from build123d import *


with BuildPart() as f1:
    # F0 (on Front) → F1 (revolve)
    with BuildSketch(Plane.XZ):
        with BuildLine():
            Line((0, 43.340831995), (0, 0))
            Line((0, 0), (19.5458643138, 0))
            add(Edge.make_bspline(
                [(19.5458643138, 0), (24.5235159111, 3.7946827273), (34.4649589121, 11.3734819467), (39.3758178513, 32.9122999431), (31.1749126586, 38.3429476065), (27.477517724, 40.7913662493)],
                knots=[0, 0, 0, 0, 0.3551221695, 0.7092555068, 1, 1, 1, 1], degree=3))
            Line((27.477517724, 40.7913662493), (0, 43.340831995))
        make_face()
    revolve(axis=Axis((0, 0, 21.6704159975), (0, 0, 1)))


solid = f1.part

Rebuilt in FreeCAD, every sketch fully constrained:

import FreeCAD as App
import Part
import Sketcher
from FreeCAD import Vector
Q = App.Units.Quantity

doc = App.newDocument("Part")
params = doc.addObject("Spreadsheet::Sheet", "Params")
for row, (alias, value) in enumerate([
    ("revolution_angle", "360 deg"),
], start=1):
    params.set(f"A{row}", alias)
    params.set(f"B{row}", "=" + value)
    params.setAlias(f"B{row}", alias)

body = doc.addObject("PartDesign::Body", "Body")

sketch1 = body.newObject("Sketcher::SketchObject", "Sketch")
sketch1.AttachmentSupport = (doc.getObject("XZ_Plane"), [""])
sketch1.MapMode = "FlatFace"
sketch1.addGeometry([
    Part.LineSegment(Vector(0, 43.340832, 0), Vector(0, 0, 0)),
    Part.LineSegment(Vector(0, 0, 0), Vector(19.545864, 0, 0)),
    Part.BSplineCurve([Vector(19.545864, 0, 0), Vector(24.523516, 3.794683, 0), Vector(34.464959, 11.373482, 0), Vector(39.375818, 32.9123, 0), Vector(31.174913, 38.342948, 0), Vector(27.477518, 40.791366, 0)], [4, 1, 1, 4], [0, 0.355122169, 0.709255507, 1], False, 3, [1, 1, 1, 1, 1, 1], False),
    Part.LineSegment(Vector(27.477518, 40.791366, 0), Vector(0, 43.340832, 0)),
], False)
sketch1.addConstraint([
    Sketcher.Constraint("Block", 2),
    Sketcher.Constraint("Coincident", 0, 2, 1, 1),
    Sketcher.Constraint("Coincident", 1, 2, 2, 1),
    Sketcher.Constraint("Coincident", 2, 2, 3, 1),
    Sketcher.Constraint("Coincident", 3, 2, 0, 1),
    Sketcher.Constraint("Vertical", 0),
    Sketcher.Constraint("Horizontal", 1),
    Sketcher.Constraint("PointOnObject", 3, 2, -2),
    Sketcher.Constraint("DistanceY", 0, 2, 0, 1, Q("43.340832 mm")),
])
revolution = body.newObject("PartDesign::Revolution", "Revolution")
revolution.Profile = sketch1
revolution.ReferenceAxis = (sketch1, ["V_Axis"])
revolution.setExpression("Angle", "Params.revolution_angle")

doc.recompute()
